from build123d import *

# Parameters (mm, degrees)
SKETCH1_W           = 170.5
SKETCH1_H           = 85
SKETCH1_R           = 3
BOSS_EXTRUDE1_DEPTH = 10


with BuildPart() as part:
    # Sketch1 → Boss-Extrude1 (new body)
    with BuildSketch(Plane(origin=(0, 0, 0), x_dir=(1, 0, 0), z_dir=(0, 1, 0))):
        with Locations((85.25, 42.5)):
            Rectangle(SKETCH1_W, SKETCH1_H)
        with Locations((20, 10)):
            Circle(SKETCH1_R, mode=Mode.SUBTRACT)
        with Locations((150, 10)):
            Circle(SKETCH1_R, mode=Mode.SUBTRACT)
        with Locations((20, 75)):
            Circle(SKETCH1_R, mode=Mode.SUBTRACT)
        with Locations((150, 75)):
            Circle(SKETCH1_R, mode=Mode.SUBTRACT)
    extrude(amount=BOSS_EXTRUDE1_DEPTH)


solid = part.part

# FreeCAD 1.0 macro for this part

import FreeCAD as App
import Part
import Sketcher

doc = App.newDocument("Part")
body = doc.addObject("PartDesign::Body", "Body")

# Sketch on XZ plane
sketch1 = body.newObject("Sketcher::SketchObject", "Sketch")
sketch1.AttachmentSupport = (doc.getObject("XZ_Plane"), [""])
sketch1.MapMode = "FlatFace"
sketch1.addGeometry(Part.LineSegment(App.Vector(0, -85, 0), App.Vector(0, 0, 0)), False)
sketch1.addGeometry(Part.LineSegment(App.Vector(0, 0, 0), App.Vector(170.5, 0, 0)), False)
sketch1.addGeometry(Part.LineSegment(App.Vector(170.5, 0, 0), App.Vector(170.5, -85, 0)), False)
sketch1.addGeometry(Part.LineSegment(App.Vector(170.5, -85, 0), App.Vector(0, -85, 0)), False)
sketch1.addGeometry(Part.Circle(App.Vector(20, -10, 0), App.Vector(0, 0, 1), 3), False)
sketch1.addGeometry(Part.Circle(App.Vector(150, -10, 0), App.Vector(0, 0, 1), 3), False)
sketch1.addGeometry(Part.Circle(App.Vector(20, -75, 0), App.Vector(0, 0, 1), 3), False)
sketch1.addGeometry(Part.Circle(App.Vector(150, -75, 0), App.Vector(0, 0, 1), 3), False)
sketch1.addConstraint(Sketcher.Constraint("Coincident", 0, 2, 1, 1))
sketch1.addConstraint(Sketcher.Constraint("Coincident", 1, 2, 2, 1))
sketch1.addConstraint(Sketcher.Constraint("Coincident", 2, 2, 3, 1))
sketch1.addConstraint(Sketcher.Constraint("Coincident", 3, 2, 0, 1))
sketch1.addConstraint(Sketcher.Constraint("Vertical", 0))
sketch1.addConstraint(Sketcher.Constraint("Horizontal", 1))
sketch1.addConstraint(Sketcher.Constraint("Vertical", 2))
sketch1.addConstraint(Sketcher.Constraint("Horizontal", 3))
sketch1.addConstraint(Sketcher.Constraint("Coincident", 0, 2, -1, 1))
sketch1.addConstraint(Sketcher.Constraint("Equal", 4, 5))
sketch1.addConstraint(Sketcher.Constraint("Equal", 5, 6))
sketch1.addConstraint(Sketcher.Constraint("Equal", 6, 7))
sketch1.addConstraint(Sketcher.Constraint("Horizontal", 4, 3, 5, 3))
sketch1.addConstraint(Sketcher.Constraint("Horizontal", 6, 3, 7, 3))
sketch1.addConstraint(Sketcher.Constraint("Vertical", 4, 3, 6, 3))
sketch1.addConstraint(Sketcher.Constraint("Vertical", 5, 3, 7, 3))
sketch1.addConstraint(Sketcher.Constraint("Diameter", 4, 6.0))
sketch1.addConstraint(Sketcher.Constraint("DistanceY", 0, 1, 0, 2, 85.0))
sketch1.addConstraint(Sketcher.Constraint("DistanceX", 1, 1, 1, 2, 170.5))
sketch1.addConstraint(Sketcher.Constraint("DistanceX", -1, 1, 4, 3, 20.0))
sketch1.addConstraint(Sketcher.Constraint("DistanceY", 4, 3, -1, 1, 10.0))
sketch1.addConstraint(Sketcher.Constraint("DistanceX", -1, 1, 5, 3, 150.0))
sketch1.addConstraint(Sketcher.Constraint("DistanceY", 6, 3, -1, 1, 75.0))
pad1 = body.newObject("PartDesign::Pad", "Pad")
pad1.Profile = sketch1
pad1.Length = 10
pad1.Reversed = True

doc.recompute()
